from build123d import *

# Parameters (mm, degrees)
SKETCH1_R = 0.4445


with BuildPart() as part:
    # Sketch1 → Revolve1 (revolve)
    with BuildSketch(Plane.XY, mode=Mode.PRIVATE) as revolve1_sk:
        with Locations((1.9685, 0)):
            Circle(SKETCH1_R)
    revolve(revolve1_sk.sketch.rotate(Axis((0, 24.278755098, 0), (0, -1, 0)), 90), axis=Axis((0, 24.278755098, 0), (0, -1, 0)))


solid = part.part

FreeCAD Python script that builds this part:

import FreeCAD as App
import Part
import Sketcher
Q = App.Units.Quantity

doc = App.newDocument("Part")
params = doc.addObject("Spreadsheet::Sheet", "Params")
for row, (alias, value) in enumerate([
    ("sketch1_diameter", "0.035 in"),
    ("revolution_angle", "360 deg"),
], start=1):
    params.set(f"A{row}", alias)
    params.set(f"B{row}", "=" + value)
    params.setAlias(f"B{row}", alias)

body = doc.addObject("PartDesign::Body", "Body")

sketch1 = body.newObject("Sketcher::SketchObject", "Sketch")
sketch1.AttachmentSupport = (doc.getObject("XY_Plane"), [""])
sketch1.MapMode = "FlatFace"
sketch1.addGeometry(Part.Circle(App.Vector(1.9685, 0, 0), App.Vector(0, 0, 1), 0.4445), False)
sketch1.addConstraint([
    Sketcher.Constraint("PointOnObject", 0, 3, -1),
    Sketcher.Constraint("Diameter", 0, Q("0.035 in")),
    Sketcher.Constraint("DistanceX", -1, 1, 0, 3, Q("0.0775 in")),
])
sketch1.setExpression("Constraints[1]", "Params.sketch1_diameter")
revolution = body.newObject("PartDesign::Revolution", "Revolution")
revolution.Profile = sketch1
revolution.ReferenceAxis = (sketch1, ["V_Axis"])
revolution.setExpression("Angle", "Params.revolution_angle")

doc.recompute()
